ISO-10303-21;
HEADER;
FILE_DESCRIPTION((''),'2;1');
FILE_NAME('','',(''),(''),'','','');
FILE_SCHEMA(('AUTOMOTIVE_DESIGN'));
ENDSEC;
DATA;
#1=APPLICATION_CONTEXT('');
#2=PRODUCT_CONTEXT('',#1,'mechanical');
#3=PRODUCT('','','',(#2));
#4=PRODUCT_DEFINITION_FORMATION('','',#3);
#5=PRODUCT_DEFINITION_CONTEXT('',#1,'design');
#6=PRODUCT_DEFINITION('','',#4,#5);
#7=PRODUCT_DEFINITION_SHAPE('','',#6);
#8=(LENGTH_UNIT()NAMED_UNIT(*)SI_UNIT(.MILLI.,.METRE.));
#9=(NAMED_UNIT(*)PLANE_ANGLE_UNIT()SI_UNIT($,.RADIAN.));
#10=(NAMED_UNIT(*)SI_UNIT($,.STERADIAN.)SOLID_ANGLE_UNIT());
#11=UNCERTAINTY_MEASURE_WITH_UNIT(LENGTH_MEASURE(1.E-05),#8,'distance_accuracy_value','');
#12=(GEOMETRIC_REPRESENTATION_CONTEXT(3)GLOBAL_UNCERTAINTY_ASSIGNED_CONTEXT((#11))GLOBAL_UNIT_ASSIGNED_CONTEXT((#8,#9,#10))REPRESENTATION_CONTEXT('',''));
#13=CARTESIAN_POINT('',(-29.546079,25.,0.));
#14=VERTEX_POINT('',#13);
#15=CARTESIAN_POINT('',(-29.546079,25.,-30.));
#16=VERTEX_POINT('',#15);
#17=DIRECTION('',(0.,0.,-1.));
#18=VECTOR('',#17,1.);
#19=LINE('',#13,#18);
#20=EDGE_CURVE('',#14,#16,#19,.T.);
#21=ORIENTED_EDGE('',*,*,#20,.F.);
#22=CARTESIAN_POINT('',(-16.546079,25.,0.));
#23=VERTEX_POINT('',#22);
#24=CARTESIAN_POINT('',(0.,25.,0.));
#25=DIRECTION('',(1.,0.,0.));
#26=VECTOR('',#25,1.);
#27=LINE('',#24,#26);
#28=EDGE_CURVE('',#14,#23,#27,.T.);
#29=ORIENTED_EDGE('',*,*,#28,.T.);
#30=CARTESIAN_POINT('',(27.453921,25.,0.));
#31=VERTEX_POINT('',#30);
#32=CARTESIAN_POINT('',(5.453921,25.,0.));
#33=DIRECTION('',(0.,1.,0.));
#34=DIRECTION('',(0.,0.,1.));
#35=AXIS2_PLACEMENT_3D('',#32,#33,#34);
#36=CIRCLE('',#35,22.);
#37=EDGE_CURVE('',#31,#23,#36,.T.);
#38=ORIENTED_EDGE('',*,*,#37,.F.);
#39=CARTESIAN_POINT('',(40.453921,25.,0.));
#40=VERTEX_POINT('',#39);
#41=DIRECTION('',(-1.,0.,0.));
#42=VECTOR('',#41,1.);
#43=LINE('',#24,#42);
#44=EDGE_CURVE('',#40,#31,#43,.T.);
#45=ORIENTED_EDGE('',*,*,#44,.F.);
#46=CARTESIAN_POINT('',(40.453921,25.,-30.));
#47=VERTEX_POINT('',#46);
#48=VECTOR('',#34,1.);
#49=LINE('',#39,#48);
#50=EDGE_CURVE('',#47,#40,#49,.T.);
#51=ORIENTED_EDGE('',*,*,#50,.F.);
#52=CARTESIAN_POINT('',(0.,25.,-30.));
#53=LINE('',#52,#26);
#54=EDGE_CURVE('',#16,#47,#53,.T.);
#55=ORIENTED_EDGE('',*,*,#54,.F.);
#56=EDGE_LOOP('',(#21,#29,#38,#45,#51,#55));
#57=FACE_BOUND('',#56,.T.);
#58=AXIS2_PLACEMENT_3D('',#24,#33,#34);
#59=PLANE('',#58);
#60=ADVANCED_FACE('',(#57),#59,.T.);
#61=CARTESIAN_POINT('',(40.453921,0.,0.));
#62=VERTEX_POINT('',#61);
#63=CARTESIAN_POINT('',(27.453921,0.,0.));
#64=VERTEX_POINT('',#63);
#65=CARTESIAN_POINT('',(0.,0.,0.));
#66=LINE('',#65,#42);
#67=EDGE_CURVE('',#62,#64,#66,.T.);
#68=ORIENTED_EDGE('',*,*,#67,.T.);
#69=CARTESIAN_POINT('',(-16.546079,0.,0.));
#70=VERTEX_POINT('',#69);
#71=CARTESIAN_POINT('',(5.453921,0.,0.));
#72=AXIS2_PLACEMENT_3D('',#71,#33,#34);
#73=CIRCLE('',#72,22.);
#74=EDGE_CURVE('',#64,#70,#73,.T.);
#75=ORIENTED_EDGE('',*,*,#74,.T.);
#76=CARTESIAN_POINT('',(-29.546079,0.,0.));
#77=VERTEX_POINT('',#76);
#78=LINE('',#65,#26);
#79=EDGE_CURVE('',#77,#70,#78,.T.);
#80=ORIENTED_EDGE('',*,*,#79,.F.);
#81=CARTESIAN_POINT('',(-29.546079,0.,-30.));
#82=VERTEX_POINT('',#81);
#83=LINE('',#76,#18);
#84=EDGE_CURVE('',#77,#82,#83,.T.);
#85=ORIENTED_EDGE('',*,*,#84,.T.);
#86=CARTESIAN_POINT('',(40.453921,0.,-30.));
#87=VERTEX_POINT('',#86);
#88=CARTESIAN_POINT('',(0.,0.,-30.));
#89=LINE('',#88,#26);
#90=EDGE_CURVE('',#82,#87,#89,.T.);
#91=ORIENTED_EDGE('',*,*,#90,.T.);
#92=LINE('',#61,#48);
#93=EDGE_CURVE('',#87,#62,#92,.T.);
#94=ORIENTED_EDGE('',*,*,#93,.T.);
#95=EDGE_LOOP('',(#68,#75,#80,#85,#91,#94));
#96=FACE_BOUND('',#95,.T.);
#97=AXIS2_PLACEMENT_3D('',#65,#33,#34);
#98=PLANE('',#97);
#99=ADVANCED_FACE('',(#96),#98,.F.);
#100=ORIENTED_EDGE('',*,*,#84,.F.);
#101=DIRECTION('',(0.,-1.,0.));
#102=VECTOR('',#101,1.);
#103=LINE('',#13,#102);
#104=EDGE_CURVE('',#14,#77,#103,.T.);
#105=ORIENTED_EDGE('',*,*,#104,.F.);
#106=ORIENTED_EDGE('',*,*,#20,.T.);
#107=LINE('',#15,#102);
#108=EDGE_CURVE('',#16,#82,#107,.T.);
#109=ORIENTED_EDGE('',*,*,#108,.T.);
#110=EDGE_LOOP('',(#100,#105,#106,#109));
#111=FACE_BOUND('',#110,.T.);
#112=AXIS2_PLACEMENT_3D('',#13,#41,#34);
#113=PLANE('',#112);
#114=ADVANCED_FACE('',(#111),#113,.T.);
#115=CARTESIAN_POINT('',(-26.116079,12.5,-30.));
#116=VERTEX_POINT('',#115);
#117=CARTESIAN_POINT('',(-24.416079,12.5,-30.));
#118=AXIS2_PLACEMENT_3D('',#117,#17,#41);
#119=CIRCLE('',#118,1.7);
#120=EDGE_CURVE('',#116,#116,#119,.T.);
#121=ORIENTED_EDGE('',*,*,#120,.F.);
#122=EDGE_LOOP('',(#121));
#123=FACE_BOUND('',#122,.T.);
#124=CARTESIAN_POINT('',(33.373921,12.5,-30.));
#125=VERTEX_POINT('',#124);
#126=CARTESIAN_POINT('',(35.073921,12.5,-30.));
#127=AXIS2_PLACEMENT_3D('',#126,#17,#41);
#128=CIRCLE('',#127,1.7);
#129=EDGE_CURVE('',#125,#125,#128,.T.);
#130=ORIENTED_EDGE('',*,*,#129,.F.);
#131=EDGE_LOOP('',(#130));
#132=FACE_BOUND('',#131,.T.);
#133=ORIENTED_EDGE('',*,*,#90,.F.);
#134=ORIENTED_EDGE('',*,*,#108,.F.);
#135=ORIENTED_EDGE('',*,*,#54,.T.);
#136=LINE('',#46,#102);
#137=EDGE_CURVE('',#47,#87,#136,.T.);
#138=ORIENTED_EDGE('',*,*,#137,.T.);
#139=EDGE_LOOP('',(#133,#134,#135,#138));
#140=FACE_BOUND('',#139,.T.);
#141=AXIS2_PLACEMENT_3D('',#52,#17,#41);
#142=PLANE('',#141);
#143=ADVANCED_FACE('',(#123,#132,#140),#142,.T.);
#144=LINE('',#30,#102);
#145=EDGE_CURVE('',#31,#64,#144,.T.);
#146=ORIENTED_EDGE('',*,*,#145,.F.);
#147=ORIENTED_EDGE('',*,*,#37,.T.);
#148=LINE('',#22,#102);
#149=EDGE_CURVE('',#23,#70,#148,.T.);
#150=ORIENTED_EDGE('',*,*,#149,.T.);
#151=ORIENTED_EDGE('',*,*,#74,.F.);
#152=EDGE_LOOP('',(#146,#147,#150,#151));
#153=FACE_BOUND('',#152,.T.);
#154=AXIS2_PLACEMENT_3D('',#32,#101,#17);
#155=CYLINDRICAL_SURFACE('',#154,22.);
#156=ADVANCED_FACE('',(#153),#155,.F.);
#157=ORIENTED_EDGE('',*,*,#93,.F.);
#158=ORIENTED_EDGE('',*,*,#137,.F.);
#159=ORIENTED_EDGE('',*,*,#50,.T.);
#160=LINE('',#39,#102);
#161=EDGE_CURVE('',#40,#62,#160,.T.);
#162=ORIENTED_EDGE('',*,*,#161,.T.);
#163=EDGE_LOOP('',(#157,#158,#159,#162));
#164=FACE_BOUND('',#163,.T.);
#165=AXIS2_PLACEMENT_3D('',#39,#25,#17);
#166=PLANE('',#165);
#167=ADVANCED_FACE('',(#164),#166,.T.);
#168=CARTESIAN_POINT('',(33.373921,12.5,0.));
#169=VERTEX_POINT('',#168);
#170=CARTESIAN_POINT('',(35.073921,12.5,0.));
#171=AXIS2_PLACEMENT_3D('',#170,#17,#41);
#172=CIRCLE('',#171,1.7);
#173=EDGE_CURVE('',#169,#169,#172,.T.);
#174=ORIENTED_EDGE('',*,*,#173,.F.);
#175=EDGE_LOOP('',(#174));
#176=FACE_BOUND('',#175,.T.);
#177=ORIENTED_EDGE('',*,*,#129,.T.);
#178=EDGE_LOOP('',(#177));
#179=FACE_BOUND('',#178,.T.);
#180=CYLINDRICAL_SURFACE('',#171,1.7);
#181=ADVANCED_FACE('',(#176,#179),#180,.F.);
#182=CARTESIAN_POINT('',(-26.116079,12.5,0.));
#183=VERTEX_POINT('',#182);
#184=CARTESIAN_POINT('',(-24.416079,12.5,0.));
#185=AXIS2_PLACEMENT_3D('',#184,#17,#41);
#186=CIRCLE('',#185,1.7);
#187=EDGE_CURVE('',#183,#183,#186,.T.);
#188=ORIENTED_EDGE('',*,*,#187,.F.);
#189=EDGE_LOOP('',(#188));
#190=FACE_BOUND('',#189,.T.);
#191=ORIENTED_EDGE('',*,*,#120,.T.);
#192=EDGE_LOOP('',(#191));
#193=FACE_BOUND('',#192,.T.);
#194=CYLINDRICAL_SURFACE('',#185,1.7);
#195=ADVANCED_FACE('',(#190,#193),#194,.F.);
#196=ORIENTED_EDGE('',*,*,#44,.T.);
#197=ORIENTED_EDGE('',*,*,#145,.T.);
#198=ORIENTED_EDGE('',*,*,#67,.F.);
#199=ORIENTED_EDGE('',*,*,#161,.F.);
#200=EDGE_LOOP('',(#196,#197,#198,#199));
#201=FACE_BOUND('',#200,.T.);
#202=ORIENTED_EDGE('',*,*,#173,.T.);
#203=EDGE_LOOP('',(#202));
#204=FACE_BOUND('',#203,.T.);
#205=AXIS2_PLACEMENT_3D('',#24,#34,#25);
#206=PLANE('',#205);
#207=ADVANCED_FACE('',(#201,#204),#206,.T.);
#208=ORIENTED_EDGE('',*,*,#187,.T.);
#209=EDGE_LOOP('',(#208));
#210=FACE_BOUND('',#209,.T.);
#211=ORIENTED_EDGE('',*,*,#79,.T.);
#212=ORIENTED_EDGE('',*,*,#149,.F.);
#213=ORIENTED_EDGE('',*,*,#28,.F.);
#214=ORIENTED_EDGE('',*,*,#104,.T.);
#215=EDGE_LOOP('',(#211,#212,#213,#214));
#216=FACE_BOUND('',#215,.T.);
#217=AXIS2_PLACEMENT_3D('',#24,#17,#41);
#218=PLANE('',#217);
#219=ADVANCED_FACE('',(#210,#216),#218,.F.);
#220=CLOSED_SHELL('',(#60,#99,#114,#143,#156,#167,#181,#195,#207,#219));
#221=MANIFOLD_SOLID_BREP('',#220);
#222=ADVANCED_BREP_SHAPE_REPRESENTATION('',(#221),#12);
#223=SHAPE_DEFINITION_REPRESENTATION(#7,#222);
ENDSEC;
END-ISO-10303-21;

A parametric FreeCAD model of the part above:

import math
import FreeCAD as App
import Part
import Sketcher

V = App.Vector

doc = App.newDocument("Part")
body = doc.addObject("PartDesign::Body", "Body")

# Sketch on XZ plane
sketch1 = doc.addObject("Sketcher::SketchObject", "Sketch")
body.addObject(sketch1)
sketch1.AttachmentSupport = (doc.XZ_Plane, [""])
sketch1.MapMode = "FlatFace"
sketch1.addGeometry([
    Part.ArcOfCircle(Part.Circle(V(5.453921, 0, 0), V(0, 0, 1), 22), math.radians(180), math.radians(360)),  # 0
    Part.LineSegment(V(27.453921, 0, 0), V(40.453921, 0, 0)),  # 1
    Part.LineSegment(V(40.453921, 0, 0), V(40.453921, -30, 0)),  # 2
    Part.LineSegment(V(40.453921, -30, 0), V(-29.546079, -30, 0)),  # 3
    Part.LineSegment(V(-29.546079, -30, 0), V(-29.546079, 0, 0)),  # 4
    Part.LineSegment(V(-29.546079, 0, 0), V(-16.546079, 0, 0)),  # 5
], False)
sketch1.addConstraint([
    Sketcher.Constraint("Coincident", 0, 2, 1, 1),
    Sketcher.Constraint("Coincident", 1, 2, 2, 1),
    Sketcher.Constraint("Coincident", 2, 2, 3, 1),
    Sketcher.Constraint("Coincident", 3, 2, 4, 1),
    Sketcher.Constraint("Coincident", 4, 2, 5, 1),
    Sketcher.Constraint("Coincident", 5, 2, 0, 1),
    Sketcher.Constraint("Horizontal", 1),
    Sketcher.Constraint("Vertical", 2),
    Sketcher.Constraint("Horizontal", 3),
    Sketcher.Constraint("Vertical", 4),
    Sketcher.Constraint("Horizontal", 5),
    Sketcher.Constraint("PointOnObject", 0, 3, -1),
    Sketcher.Constraint("PointOnObject", 0, 2, -1),
    Sketcher.Constraint("PointOnObject", 4, 2, -1),
    Sketcher.Constraint("Equal", 1, 5),
    Sketcher.Constraint("Radius", 0, 22.0),
    Sketcher.Constraint("DistanceX", 1, 1, 1, 2, 13.0),
    Sketcher.Constraint("DistanceY", 2, 2, 2, 1, 30.0),
    Sketcher.Constraint("DistanceX", -1, 1, 0, 3, 5.453921),
])
pad1 = doc.addObject("PartDesign::Pad", "Pad")
body.addObject(pad1)
pad1.Profile = sketch1
pad1.Length = 25
pad1.Reversed = True

# Sketch on XY plane
sketch2 = doc.addObject("Sketcher::SketchObject", "Sketch001")
body.addObject(sketch2)
sketch2.AttachmentSupport = (doc.XY_Plane, [""])
sketch2.MapMode = "FlatFace"
sketch2.AttachmentOffset = App.Placement(V(0, 0, -30), App.Rotation())
sketch2.addGeometry([
    Part.Circle(V(35.073921, 12.5, 0), V(0, 0, 1), 1.7),
    Part.Circle(V(-24.416079, 12.5, 0), V(0, 0, 1), 1.7),
], False)
sketch2.addConstraint([
    Sketcher.Constraint("Equal", 0, 1),
    Sketcher.Constraint("Horizontal", 0, 3, 1, 3),
    Sketcher.Constraint("Diameter", 0, 3.4),
    Sketcher.Constraint("DistanceY", -1, 1, 0, 3, 12.5),
    Sketcher.Constraint("DistanceX", 1, 3, 0, 3, 59.49),
    Sketcher.Constraint("DistanceX", -1, 1, 0, 3, 35.073921),
])
pad2 = doc.addObject("PartDesign::Pad", "Pad001")
body.addObject(pad2)
pad2.Profile = sketch2
pad2.Length = 30

# Sketch on XY plane
sketch3 = doc.addObject("Sketcher::SketchObject", "Sketch002")
body.addObject(sketch3)
sketch3.AttachmentSupport = (doc.XY_Plane, [""])
sketch3.MapMode = "FlatFace"
sketch3.AttachmentOffset = App.Placement(V(0, 0, -30), App.Rotation())
sketch3.addGeometry([
    Part.Circle(V(35.073921, 12.5, 0), V(0, 0, 1), 1.7),
    Part.Circle(V(-24.416079, 12.5, 0), V(0, 0, 1), 1.7),
], False)
sketch3.addConstraint([
    Sketcher.Constraint("Equal", 0, 1),
    Sketcher.Constraint("Horizontal", 0, 3, 1, 3),
    Sketcher.Constraint("Diameter", 0, 3.4),
    Sketcher.Constraint("DistanceY", -1, 1, 0, 3, 12.5),
    Sketcher.Constraint("DistanceX", 1, 3, 0, 3, 59.49),
    Sketcher.Constraint("DistanceX", -1, 1, 0, 3, 35.073921),
])
pocket1 = doc.addObject("PartDesign::Pocket", "Pocket")
body.addObject(pocket1)
pocket1.Profile = sketch3
pocket1.Length = 30
pocket1.Reversed = True

doc.recompute()
